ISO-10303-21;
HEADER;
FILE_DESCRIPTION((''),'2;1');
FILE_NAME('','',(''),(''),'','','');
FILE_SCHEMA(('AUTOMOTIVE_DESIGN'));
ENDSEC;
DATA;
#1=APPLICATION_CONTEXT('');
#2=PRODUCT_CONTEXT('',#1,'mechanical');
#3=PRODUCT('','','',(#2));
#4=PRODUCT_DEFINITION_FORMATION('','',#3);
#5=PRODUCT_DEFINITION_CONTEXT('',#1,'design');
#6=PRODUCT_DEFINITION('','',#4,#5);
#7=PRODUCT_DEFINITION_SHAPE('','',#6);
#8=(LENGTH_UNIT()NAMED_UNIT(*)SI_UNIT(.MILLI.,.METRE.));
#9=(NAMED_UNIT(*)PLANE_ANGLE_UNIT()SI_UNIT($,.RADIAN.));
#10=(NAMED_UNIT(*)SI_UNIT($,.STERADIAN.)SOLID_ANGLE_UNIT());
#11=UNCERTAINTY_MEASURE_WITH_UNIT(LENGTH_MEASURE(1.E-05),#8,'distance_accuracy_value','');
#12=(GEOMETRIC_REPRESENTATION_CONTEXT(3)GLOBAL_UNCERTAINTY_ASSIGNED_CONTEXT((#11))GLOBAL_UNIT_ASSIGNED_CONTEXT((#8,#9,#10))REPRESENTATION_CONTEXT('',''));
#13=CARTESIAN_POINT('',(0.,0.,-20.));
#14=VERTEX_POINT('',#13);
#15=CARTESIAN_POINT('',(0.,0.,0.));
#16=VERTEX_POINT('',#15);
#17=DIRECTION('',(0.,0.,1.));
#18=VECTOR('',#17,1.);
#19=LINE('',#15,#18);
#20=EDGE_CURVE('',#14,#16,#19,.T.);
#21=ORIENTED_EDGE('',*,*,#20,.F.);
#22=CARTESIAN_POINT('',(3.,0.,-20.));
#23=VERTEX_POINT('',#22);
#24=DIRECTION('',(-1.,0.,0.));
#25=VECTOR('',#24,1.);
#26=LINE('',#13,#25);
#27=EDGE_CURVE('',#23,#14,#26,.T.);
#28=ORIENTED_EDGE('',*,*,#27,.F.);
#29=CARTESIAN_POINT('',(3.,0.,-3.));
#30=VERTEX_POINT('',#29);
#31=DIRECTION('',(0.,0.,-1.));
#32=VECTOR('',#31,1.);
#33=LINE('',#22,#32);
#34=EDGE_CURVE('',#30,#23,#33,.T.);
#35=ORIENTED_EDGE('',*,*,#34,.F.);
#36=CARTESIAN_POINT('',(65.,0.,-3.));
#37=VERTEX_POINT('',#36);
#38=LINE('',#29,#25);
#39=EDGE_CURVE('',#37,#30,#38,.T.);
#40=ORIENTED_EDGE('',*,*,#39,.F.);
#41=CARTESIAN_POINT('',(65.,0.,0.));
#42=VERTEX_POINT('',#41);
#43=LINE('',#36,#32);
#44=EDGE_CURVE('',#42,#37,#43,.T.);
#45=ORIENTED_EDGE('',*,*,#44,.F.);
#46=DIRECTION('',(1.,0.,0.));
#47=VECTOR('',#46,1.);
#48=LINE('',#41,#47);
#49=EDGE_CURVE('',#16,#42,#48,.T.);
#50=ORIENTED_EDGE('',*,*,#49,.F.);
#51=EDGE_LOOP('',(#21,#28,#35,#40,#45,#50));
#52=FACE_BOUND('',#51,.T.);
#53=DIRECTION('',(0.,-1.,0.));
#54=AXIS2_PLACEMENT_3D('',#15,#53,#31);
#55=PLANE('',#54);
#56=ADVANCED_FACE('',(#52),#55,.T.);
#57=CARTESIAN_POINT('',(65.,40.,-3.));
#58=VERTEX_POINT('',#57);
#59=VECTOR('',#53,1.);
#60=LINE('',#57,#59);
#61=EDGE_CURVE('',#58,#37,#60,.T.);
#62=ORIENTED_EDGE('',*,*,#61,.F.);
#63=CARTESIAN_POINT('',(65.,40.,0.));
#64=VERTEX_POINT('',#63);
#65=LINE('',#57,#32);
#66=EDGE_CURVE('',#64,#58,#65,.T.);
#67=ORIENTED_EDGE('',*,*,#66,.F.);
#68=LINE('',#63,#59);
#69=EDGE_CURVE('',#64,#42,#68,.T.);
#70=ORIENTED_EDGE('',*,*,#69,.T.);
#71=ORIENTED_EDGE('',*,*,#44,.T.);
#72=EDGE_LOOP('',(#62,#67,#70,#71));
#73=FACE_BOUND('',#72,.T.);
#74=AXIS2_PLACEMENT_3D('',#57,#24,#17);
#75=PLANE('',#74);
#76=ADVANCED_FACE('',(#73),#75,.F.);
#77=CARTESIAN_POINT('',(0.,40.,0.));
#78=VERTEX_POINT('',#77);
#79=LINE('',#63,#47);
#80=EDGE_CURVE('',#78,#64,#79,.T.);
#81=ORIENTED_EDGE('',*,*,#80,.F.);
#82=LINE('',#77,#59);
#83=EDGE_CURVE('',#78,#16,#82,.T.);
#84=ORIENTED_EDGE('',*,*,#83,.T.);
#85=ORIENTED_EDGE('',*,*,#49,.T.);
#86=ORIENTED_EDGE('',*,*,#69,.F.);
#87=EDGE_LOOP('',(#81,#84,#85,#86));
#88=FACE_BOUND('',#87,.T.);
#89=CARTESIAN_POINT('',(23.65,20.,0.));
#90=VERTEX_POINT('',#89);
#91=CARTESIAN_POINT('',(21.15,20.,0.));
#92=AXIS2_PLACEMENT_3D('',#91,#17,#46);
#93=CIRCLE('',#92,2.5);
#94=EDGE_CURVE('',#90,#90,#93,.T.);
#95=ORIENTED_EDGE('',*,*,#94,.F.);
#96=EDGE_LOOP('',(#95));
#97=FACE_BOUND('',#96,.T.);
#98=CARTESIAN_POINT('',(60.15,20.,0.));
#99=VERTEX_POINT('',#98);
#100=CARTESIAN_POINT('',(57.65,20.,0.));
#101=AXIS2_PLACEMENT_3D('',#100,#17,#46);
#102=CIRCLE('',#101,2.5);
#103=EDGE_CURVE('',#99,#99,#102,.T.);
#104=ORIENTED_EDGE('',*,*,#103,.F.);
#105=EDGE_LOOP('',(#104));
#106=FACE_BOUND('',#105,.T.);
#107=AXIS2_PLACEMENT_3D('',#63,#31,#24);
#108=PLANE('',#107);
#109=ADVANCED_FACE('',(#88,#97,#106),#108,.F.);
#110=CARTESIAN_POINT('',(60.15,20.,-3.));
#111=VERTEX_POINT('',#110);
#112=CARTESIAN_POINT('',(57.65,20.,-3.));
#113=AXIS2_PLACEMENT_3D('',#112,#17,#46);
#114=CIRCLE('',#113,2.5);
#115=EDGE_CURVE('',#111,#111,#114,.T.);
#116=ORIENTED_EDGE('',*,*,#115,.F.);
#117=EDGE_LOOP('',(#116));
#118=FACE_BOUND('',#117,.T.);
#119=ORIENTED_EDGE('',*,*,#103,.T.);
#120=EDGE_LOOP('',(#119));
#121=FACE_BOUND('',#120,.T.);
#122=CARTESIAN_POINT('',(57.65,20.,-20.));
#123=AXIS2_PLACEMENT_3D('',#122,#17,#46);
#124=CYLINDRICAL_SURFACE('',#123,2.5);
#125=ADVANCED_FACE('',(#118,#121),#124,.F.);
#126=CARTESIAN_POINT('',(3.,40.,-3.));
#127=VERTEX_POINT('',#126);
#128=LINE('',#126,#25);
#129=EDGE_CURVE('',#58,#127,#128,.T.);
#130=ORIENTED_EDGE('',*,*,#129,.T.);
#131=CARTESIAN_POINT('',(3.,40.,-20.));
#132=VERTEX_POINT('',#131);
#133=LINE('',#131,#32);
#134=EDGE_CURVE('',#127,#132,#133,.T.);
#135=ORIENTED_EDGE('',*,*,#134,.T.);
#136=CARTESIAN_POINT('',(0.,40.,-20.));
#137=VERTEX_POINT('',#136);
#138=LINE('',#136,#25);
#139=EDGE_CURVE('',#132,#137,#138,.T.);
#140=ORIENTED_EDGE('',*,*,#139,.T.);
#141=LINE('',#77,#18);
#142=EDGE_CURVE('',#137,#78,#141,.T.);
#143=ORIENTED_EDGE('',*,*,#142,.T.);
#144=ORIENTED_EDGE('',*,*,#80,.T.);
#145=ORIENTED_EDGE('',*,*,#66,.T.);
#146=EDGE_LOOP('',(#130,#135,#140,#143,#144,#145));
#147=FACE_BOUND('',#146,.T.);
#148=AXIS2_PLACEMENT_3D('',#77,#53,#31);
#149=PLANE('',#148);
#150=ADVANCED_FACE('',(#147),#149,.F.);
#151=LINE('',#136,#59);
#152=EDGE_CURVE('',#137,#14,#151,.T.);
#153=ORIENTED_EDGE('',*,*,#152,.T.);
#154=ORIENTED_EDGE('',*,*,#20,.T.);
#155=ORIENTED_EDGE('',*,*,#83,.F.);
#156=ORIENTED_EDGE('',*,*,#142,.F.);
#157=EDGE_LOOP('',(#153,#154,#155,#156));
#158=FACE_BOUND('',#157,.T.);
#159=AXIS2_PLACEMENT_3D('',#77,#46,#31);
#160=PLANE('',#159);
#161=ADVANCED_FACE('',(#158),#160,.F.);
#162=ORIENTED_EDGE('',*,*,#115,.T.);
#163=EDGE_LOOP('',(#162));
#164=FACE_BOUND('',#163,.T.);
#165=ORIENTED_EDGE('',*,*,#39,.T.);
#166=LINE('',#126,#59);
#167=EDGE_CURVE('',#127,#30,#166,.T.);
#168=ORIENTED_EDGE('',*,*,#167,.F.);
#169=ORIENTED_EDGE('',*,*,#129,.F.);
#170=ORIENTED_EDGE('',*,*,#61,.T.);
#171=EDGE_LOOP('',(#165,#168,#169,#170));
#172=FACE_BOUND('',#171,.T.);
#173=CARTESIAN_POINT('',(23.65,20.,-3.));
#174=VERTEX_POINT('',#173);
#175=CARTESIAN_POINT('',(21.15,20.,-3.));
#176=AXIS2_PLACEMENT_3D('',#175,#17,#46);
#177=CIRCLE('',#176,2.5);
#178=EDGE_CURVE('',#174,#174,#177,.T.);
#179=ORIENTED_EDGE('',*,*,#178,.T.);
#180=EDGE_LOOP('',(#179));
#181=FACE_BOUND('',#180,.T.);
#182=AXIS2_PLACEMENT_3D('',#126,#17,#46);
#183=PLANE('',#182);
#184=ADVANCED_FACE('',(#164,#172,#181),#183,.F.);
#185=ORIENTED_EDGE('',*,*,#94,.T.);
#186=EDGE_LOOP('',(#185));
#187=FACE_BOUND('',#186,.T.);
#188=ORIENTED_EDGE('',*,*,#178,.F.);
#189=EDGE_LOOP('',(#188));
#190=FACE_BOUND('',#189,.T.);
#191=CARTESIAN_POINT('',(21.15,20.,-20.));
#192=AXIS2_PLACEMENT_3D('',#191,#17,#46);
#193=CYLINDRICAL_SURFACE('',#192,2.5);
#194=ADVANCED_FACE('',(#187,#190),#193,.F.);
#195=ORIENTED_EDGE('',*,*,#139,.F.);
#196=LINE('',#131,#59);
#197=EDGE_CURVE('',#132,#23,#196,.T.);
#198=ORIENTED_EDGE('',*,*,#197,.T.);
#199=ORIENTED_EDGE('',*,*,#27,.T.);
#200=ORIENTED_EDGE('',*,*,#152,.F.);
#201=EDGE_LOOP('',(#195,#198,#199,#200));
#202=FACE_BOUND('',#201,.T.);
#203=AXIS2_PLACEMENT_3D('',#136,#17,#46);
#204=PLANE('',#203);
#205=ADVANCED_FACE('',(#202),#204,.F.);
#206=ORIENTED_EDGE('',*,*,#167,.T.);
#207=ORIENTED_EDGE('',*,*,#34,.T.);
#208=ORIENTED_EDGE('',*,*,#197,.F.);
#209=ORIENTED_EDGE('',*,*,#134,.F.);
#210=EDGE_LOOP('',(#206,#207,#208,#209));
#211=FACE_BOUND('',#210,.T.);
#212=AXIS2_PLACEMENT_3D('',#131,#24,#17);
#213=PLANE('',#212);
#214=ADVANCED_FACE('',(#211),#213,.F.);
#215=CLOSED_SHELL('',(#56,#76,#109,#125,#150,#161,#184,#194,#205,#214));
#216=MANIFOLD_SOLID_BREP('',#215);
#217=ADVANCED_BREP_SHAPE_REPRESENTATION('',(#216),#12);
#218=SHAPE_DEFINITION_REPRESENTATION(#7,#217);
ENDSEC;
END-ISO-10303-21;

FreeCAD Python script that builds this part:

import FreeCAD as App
import Part
import Sketcher
Q = App.Units.Quantity


def add_polygon(sketch, points):
    """Adds a closed chain of lines whose ends are joined by coincident constraints."""
    first, n = sketch.GeometryCount, len(points)
    for a, b in zip(points, points[1:] + points[:1]):
        sketch.addGeometry(Part.LineSegment(App.Vector(*a, 0), App.Vector(*b, 0)), False)
    for i in range(n):
        sketch.addConstraint(Sketcher.Constraint("Coincident", first + i, 2, first + (i + 1) % n, 1))

doc = App.newDocument("Part")
body = doc.addObject("PartDesign::Body", "Body")

sketch1 = body.newObject("Sketcher::SketchObject", "Sketch")
sketch1.AttachmentSupport = (doc.getObject("XZ_Plane"), [""])
sketch1.MapMode = "FlatFace"
add_polygon(sketch1, [(0, -20), (0, 0), (65, 0), (65, -3), (3, -3), (3, -20)])
sketch1.addConstraint([
    Sketcher.Constraint("Vertical", 0),
    Sketcher.Constraint("Horizontal", 1),
    Sketcher.Constraint("Vertical", 2),
    Sketcher.Constraint("Horizontal", 3),
    Sketcher.Constraint("Vertical", 4),
    Sketcher.Constraint("Horizontal", 5),
    Sketcher.Constraint("Coincident", 0, 2, -1, 1),
    Sketcher.Constraint("Equal", 5, 2),
    Sketcher.Constraint("DistanceX", 1, 1, 1, 2, Q("65 mm")),
    Sketcher.Constraint("DistanceX", 3, 2, 3, 1, Q("62 mm")),
    Sketcher.Constraint("DistanceY", 0, 1, 0, 2, Q("20 mm")),
])
pad1 = body.newObject("PartDesign::Pad", "Pad")
pad1.Profile = sketch1
pad1.Length = 40
pad1.Reversed = True

sketch2 = body.newObject("Sketcher::SketchObject", "Sketch001")
sketch2.AttachmentSupport = (doc.getObject("XY_Plane"), [""])
sketch2.MapMode = "FlatFace"
sketch2.addGeometry([
    Part.Circle(App.Vector(21.1, 20, 0), App.Vector(0, 0, 1), 2.5),
    Part.Circle(App.Vector(57.6, 20, 0), App.Vector(0, 0, 1), 2.5),
], False)
sketch2.addConstraint([
    Sketcher.Constraint("Equal", 0, 1),
    Sketcher.Constraint("Horizontal", 0, 3, 1, 3),
    Sketcher.Constraint("Diameter", 0, Q("5 mm")),
    Sketcher.Constraint("DistanceY", -1, 1, 0, 3, Q("20 mm")),
    Sketcher.Constraint("DistanceX", 0, 3, 1, 3, Q("36.5 mm")),
    Sketcher.Constraint("DistanceX", -1, 1, 0, 3, Q("21.15 mm")),
])
pocket1 = body.newObject("PartDesign::Pocket", "Pocket")
pocket1.Profile = sketch2
pocket1.Type = "ThroughAll"

doc.recompute()
